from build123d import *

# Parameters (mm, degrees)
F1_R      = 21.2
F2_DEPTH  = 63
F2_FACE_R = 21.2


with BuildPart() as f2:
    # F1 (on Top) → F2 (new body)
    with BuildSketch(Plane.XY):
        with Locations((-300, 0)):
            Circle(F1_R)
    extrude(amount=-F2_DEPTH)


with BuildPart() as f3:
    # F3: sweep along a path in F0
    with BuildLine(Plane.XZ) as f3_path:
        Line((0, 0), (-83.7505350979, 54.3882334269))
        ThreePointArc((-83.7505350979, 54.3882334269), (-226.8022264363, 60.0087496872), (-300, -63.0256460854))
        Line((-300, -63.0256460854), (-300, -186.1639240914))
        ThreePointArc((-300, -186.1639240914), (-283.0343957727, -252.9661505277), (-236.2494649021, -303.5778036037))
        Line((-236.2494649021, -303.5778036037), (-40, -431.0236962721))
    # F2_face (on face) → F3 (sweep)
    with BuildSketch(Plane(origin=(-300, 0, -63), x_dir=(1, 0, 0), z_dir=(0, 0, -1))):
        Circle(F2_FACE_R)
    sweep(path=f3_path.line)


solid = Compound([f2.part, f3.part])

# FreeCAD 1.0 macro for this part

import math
import FreeCAD as App
import Part
import Sketcher

V = App.Vector
Q = App.Units.Quantity

doc = App.newDocument("Part")
body = doc.addObject("PartDesign::Body", "Body")

# Sketch on XY plane
sketch1 = body.newObject("Sketcher::SketchObject", "Sketch")
sketch1.AttachmentSupport = (doc.getObject("XY_Plane"), [""])
sketch1.MapMode = "FlatFace"
sketch1.addGeometry(Part.Circle(V(-300, 0, 0), V(0, 0, 1), 21), False)
sketch1.addConstraint(Sketcher.Constraint("PointOnObject", 0, 3, -1))
sketch1.addConstraint(Sketcher.Constraint("Diameter", 0, Q("42.4 mm")))
sketch1.addConstraint(Sketcher.Constraint("DistanceX", 0, 3, -1, 1, Q("300 mm")))
pad1 = body.newObject("PartDesign::Pad", "Pad")
pad1.Profile = sketch1
pad1.Length = 63
pad1.Reversed = True
body2 = doc.addObject("PartDesign::Body", "Body001")

# Sketch on XY plane
sketch2 = body2.newObject("Sketcher::SketchObject", "Sketch001")
sketch2.AttachmentSupport = (doc.getObject("XY_Plane001"), [""])
sketch2.MapMode = "FlatFace"
sketch2.AttachmentOffset = App.Placement(V(0, 0, -63), App.Rotation())
sketch2.addGeometry(Part.Circle(V(-300, 0, 0), V(0, 0, 1), 21), False)
sketch2.addConstraint(Sketcher.Constraint("PointOnObject", 0, 3, -1))
sketch2.addConstraint(Sketcher.Constraint("Diameter", 0, Q("42.4 mm")))
sketch2.addConstraint(Sketcher.Constraint("DistanceX", 0, 3, -1, 1, Q("300 mm")))

# Sketch on XZ plane
sketch3 = body2.newObject("Sketcher::SketchObject", "Sketch002")
sketch3.AttachmentSupport = (doc.getObject("XZ_Plane001"), [""])
sketch3.MapMode = "FlatFace"
sketch3.addGeometry(Part.LineSegment(V(0, 0, 0), V(-84, 54, 0)), False)
sketch3.addGeometry(Part.ArcOfCircle(Part.Circle(V(-160, -63, 0), V(0, 0, 1), 140), math.radians(57), math.radians(180)), False)
sketch3.addGeometry(Part.LineSegment(V(-300, -63, 0), V(-300, -186, 0)), False)
sketch3.addGeometry(Part.ArcOfCircle(Part.Circle(V(-160, -186, 0), V(0, 0, 1), 140), math.radians(180), math.radians(237)), False)
sketch3.addGeometry(Part.LineSegment(V(-236, -304, 0), V(-40, -431, 0)), False)
sketch3.addConstraint(Sketcher.Constraint("Tangent", 0, 2, 1, 1))
sketch3.addConstraint(Sketcher.Constraint("Tangent", 1, 2, 2, 1))
sketch3.addConstraint(Sketcher.Constraint("Tangent", 2, 2, 3, 1))
sketch3.addConstraint(Sketcher.Constraint("Tangent", 3, 2, 4, 1))
sketch3.addConstraint(Sketcher.Constraint("Vertical", 2))
sketch3.addConstraint(Sketcher.Constraint("Coincident", 0, 1, -1, 1))
sketch3.addConstraint(Sketcher.Constraint("Equal", 1, 3))
sketch3.addConstraint(Sketcher.Constraint("Parallel", 0, 4))
sketch3.addConstraint(Sketcher.Constraint("Radius", 1, Q("140 mm")))
sketch3.addConstraint(Sketcher.Constraint("Angle", 0, Q("147 deg")))
sketch3.addConstraint(Sketcher.Constraint("DistanceX", 1, 3, -1, 1, Q("160 mm")))
sketch3.addConstraint(Sketcher.Constraint("DistanceX", 4, 2, -1, 1, Q("40 mm")))
sketch3.addConstraint(Sketcher.Constraint("DistanceY", 2, 2, 2, 1, Q("123.138278 mm")))
doc.recompute()

additivepipe = body2.newObject("PartDesign::AdditivePipe", "AdditivePipe")
additivepipe.Profile = sketch2
additivepipe.Spine = (sketch3, ["Edge1", "Edge2", "Edge3", "Edge4", "Edge5"])

doc.recompute()
